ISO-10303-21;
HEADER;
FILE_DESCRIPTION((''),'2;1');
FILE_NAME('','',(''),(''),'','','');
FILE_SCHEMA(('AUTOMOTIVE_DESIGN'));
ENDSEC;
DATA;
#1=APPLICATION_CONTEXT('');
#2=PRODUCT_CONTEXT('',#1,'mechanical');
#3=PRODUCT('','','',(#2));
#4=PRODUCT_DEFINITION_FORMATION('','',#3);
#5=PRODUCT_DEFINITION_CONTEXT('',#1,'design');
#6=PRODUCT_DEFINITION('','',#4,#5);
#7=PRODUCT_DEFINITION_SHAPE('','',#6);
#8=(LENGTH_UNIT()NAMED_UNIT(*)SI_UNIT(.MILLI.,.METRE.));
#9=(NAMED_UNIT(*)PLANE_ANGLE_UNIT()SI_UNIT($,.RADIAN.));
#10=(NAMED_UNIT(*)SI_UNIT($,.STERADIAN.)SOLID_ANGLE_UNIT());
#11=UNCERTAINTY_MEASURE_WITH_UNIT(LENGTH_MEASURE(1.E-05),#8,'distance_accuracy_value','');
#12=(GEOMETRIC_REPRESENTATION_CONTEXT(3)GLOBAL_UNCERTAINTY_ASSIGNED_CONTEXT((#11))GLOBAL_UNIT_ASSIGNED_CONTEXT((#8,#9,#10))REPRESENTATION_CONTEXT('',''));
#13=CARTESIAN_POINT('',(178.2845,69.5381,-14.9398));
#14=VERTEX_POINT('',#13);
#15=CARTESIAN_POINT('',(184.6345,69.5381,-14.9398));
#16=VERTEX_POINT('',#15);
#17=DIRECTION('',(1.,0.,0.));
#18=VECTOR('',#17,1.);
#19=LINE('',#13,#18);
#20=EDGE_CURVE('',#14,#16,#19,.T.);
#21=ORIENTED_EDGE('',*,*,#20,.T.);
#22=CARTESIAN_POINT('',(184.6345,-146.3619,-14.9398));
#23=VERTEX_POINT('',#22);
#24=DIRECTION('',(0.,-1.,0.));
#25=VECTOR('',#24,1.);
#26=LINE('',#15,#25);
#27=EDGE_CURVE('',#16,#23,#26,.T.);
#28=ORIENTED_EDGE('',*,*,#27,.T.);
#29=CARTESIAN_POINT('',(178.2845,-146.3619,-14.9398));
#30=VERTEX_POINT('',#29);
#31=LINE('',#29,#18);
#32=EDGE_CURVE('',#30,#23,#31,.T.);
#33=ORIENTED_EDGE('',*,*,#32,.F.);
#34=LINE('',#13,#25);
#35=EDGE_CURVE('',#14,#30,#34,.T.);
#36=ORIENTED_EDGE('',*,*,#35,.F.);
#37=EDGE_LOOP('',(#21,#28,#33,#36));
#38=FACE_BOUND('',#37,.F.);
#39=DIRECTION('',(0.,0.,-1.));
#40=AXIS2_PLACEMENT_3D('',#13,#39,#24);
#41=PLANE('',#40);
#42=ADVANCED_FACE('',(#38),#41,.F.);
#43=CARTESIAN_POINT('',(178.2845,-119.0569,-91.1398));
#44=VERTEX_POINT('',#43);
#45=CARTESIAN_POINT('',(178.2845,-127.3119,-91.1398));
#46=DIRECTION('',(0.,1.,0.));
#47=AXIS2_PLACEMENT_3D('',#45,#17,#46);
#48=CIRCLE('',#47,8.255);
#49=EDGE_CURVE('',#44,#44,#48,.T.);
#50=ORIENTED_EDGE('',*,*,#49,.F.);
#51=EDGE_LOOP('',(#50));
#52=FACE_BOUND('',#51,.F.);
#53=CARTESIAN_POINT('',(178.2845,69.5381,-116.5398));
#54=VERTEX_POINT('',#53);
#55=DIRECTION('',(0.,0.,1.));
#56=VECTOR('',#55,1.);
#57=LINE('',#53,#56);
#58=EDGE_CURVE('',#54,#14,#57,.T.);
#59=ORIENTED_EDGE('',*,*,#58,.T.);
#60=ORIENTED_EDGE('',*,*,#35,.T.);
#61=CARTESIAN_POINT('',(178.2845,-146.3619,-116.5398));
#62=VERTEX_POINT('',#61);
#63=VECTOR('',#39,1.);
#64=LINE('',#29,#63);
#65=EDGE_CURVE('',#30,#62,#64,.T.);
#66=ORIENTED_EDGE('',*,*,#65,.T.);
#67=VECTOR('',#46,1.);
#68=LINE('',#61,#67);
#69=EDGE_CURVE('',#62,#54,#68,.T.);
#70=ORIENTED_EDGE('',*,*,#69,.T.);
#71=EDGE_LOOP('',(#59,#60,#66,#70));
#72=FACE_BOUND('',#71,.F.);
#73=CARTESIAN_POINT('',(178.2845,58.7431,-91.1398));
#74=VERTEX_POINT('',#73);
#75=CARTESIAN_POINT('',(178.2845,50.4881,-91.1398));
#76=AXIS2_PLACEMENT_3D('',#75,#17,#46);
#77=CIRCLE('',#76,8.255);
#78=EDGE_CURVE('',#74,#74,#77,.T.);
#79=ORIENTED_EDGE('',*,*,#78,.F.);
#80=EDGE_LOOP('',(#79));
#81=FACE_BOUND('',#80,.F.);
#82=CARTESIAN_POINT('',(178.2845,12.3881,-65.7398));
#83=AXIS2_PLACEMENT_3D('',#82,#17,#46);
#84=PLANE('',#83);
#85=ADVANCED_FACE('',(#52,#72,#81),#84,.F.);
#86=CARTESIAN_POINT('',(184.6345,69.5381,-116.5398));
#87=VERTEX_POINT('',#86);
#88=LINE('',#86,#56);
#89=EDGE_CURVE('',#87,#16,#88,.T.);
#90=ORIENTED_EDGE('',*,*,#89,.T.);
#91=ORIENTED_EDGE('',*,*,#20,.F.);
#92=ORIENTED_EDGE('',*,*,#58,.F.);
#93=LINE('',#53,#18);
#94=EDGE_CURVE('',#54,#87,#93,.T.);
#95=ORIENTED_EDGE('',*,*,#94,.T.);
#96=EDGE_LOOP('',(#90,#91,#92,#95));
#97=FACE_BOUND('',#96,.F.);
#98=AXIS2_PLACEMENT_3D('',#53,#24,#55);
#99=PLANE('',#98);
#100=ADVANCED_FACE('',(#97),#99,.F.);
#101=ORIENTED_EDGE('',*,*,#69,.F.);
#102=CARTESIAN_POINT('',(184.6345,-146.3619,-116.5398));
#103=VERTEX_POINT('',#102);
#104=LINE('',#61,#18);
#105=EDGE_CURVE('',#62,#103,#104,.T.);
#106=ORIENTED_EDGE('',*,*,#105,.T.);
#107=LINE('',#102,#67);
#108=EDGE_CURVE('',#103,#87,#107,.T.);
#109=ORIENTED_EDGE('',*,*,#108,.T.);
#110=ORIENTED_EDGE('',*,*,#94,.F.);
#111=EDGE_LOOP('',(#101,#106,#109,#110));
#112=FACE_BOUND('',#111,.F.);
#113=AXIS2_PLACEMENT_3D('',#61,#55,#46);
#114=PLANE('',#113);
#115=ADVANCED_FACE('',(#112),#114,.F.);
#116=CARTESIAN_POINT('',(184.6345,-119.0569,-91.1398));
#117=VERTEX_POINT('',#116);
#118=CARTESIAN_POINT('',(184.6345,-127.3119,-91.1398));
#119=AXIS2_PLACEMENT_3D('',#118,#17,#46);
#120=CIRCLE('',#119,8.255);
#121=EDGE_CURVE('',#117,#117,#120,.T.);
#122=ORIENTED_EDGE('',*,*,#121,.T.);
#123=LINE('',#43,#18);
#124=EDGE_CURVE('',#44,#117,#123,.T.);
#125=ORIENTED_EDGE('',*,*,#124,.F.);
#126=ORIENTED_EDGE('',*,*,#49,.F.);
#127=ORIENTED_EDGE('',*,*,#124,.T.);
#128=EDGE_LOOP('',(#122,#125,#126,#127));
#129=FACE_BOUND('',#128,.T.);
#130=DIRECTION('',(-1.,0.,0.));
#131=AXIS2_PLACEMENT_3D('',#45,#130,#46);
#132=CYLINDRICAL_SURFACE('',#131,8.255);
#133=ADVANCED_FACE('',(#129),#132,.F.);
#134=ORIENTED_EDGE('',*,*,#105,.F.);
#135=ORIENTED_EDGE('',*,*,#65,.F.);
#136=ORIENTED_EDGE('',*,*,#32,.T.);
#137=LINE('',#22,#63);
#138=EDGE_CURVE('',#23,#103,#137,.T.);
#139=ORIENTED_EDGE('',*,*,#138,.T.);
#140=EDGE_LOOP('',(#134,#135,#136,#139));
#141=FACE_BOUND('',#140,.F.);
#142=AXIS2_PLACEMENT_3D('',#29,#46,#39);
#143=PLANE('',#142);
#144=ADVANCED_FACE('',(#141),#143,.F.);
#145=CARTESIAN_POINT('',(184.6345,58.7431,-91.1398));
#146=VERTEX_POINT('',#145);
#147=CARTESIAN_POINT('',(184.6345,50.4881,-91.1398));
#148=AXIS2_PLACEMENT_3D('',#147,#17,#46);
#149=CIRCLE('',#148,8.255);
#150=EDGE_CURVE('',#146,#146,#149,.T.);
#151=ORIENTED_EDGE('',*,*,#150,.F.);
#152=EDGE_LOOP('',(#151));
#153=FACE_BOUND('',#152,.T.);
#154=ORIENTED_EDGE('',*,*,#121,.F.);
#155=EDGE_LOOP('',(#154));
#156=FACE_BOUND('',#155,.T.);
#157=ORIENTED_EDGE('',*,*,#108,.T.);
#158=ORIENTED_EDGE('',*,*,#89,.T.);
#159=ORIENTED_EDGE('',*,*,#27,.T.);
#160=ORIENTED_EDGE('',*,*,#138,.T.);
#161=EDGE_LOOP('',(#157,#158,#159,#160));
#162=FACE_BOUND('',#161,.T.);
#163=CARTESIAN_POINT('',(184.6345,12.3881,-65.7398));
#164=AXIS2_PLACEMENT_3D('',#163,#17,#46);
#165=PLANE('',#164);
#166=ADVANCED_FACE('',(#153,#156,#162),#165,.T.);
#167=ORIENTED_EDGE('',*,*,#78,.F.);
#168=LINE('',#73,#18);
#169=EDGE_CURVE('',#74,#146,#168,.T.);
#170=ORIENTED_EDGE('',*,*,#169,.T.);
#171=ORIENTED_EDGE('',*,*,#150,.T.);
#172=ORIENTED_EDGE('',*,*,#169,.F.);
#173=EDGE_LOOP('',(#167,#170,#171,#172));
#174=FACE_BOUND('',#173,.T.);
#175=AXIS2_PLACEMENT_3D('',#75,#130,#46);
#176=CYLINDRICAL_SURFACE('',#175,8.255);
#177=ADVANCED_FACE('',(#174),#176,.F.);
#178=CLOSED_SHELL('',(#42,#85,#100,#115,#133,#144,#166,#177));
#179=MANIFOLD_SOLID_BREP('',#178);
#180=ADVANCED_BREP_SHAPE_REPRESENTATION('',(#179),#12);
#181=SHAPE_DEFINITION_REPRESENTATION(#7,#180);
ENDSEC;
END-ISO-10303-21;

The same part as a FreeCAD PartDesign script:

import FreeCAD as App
import Part
import Sketcher
from FreeCAD import Vector
Q = App.Units.Quantity

doc = App.newDocument("Part")
params = doc.addObject("Spreadsheet::Sheet", "Params")
for row, (alias, value) in enumerate([
    ("sketch1_diameter", "0.65 in"),
    ("sketch1_height", "4 in"),
    ("sketch1_width", "8.5 in"),
    ("pad1_length", "0.25 in"),
], start=1):
    params.set(f"A{row}", alias)
    params.set(f"B{row}", "=" + value)
    params.setAlias(f"B{row}", alias)

body = doc.addObject("PartDesign::Body", "Body")

# Sketch on YZ plane
sketch1 = body.newObject("Sketcher::SketchObject", "Sketch")
sketch1.AttachmentSupport = (doc.getObject("YZ_Plane"), [""])
sketch1.MapMode = "FlatFace"
sketch1.AttachmentOffset = App.Placement(Vector(0, 0, 178.2845), App.Rotation())
sketch1.addGeometry([
    Part.LineSegment(Vector(70, -117, 0), Vector(70, -15, 0)),  # 0
    Part.LineSegment(Vector(70, -15, 0), Vector(-146, -15, 0)),  # 1
    Part.LineSegment(Vector(-146, -15, 0), Vector(-146, -117, 0)),  # 2
    Part.LineSegment(Vector(-146, -117, 0), Vector(70, -117, 0)),  # 3
    Part.Circle(Vector(-127, -91, 0), Vector(0, 0, 1), 8),  # 4
    Part.Circle(Vector(50, -91, 0), Vector(0, 0, 1), 8),  # 5
], False)
sketch1.addConstraint([
    Sketcher.Constraint("Coincident", 0, 2, 1, 1),
    Sketcher.Constraint("Coincident", 1, 2, 2, 1),
    Sketcher.Constraint("Coincident", 2, 2, 3, 1),
    Sketcher.Constraint("Coincident", 3, 2, 0, 1),
    Sketcher.Constraint("Vertical", 0),
    Sketcher.Constraint("Horizontal", 1),
    Sketcher.Constraint("Vertical", 2),
    Sketcher.Constraint("Horizontal", 3),
    Sketcher.Constraint("Equal", 4, 5),
    Sketcher.Constraint("Horizontal", 4, 3, 5, 3),
    Sketcher.Constraint("Diameter", 4, Q("0.65 in")),
    Sketcher.Constraint("DistanceY", 0, 1, 0, 2, Q("4 in")),
    Sketcher.Constraint("DistanceX", 1, 2, 1, 1, Q("8.5 in")),
    Sketcher.Constraint("DistanceX", 4, 3, 5, 3, Q("7 in")),
    Sketcher.Constraint("DistanceY", 2, 2, 4, 3, Q("1 in")),
    Sketcher.Constraint("DistanceX", 5, 3, 0, 2, Q("0.75 in")),
    Sketcher.Constraint("DistanceX", 4, 3, -1, 1, Q("127.312 mm")),
    Sketcher.Constraint("DistanceY", 4, 3, -1, 1, Q("91.1398 mm")),
])
sketch1.setExpression("Constraints[10]", "Params.sketch1_diameter")
sketch1.setExpression("Constraints[11]", "Params.sketch1_height")
sketch1.setExpression("Constraints[12]", "Params.sketch1_width")
pad1 = body.newObject("PartDesign::Pad", "Pad")
pad1.Profile = sketch1
pad1.setExpression("Length", "Params.pad1_length")

doc.recompute()
